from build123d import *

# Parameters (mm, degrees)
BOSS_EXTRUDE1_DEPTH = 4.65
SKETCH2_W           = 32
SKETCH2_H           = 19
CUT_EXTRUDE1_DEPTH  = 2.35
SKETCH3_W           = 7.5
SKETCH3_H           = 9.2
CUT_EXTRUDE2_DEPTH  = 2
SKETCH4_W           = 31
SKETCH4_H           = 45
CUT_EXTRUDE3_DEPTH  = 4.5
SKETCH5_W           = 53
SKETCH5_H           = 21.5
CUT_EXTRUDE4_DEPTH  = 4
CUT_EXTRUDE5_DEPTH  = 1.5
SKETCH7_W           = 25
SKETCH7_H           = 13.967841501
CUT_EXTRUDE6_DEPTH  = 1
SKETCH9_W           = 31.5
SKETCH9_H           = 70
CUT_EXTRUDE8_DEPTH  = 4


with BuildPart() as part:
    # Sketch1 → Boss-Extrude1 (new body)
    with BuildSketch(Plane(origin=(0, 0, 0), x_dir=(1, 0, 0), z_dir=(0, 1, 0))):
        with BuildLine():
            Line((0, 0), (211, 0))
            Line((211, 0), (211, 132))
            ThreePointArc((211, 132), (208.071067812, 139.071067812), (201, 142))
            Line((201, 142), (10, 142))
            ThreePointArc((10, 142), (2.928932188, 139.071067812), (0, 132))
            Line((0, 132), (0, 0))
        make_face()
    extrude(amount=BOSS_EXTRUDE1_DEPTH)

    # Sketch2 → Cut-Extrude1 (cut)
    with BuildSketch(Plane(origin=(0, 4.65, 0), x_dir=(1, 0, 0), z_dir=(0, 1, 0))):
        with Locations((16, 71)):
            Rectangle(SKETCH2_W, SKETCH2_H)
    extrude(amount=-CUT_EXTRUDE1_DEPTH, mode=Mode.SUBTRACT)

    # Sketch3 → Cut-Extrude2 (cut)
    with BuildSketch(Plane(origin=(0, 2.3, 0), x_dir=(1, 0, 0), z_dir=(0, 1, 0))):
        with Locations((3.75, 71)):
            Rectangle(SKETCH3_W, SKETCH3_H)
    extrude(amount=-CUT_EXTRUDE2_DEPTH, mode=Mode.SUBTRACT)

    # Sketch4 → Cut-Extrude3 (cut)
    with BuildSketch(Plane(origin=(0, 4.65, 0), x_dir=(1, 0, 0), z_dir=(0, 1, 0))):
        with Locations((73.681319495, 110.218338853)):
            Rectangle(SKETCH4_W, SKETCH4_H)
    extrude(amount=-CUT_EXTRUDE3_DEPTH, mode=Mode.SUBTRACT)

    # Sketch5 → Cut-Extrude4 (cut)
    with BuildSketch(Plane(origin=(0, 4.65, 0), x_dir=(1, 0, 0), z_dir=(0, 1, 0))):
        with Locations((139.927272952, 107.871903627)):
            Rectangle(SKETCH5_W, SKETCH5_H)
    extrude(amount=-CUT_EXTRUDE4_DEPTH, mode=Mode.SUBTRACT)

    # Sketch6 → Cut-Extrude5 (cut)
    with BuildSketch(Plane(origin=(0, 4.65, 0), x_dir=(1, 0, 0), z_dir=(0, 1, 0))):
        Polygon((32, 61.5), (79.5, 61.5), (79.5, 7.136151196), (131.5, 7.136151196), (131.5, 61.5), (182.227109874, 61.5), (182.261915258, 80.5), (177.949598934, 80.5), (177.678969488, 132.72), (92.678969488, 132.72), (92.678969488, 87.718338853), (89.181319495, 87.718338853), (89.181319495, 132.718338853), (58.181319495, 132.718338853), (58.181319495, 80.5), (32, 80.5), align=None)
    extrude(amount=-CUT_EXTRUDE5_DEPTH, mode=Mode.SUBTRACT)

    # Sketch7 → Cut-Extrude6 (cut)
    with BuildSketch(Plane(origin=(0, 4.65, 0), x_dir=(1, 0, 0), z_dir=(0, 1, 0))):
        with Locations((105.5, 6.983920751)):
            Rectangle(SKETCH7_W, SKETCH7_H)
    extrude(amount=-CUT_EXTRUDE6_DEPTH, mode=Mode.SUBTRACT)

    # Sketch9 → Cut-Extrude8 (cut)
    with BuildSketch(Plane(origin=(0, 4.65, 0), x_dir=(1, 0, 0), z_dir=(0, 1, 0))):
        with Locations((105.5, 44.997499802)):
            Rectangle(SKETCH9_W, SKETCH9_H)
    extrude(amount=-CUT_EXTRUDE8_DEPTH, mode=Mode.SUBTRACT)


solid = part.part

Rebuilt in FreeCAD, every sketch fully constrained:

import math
import FreeCAD as App
import Part
import Sketcher
Q = App.Units.Quantity


def add_polygon(sketch, points):
    """Adds a closed chain of lines whose ends are joined by coincident constraints."""
    first, n = sketch.GeometryCount, len(points)
    for a, b in zip(points, points[1:] + points[:1]):
        sketch.addGeometry(Part.LineSegment(App.Vector(*a, 0), App.Vector(*b, 0)), False)
    for i in range(n):
        sketch.addConstraint(Sketcher.Constraint("Coincident", first + i, 2, first + (i + 1) % n, 1))

doc = App.newDocument("Part")
body = doc.addObject("PartDesign::Body", "Body")

# Sketch on XZ plane
sketch1 = body.newObject("Sketcher::SketchObject", "Sketch")
sketch1.AttachmentSupport = (doc.getObject("XZ_Plane"), [""])
sketch1.MapMode = "FlatFace"
sketch1.addGeometry(Part.LineSegment(App.Vector(0, 0, 0), App.Vector(211, 0, 0)), False)
sketch1.addGeometry(Part.LineSegment(App.Vector(211, 0, 0), App.Vector(211, -132, 0)), False)
sketch1.addGeometry(Part.ArcOfCircle(Part.Circle(App.Vector(201, -132, 0), App.Vector(0, 0, 1), 10), math.radians(-90), math.radians(0)), False)
sketch1.addGeometry(Part.LineSegment(App.Vector(201, -142, 0), App.Vector(10, -142, 0)), False)
sketch1.addGeometry(Part.ArcOfCircle(Part.Circle(App.Vector(10, -132, 0), App.Vector(0, 0, 1), 10), math.radians(180), math.radians(270)), False)
sketch1.addGeometry(Part.LineSegment(App.Vector(0, -132, 0), App.Vector(0, 0, 0)), False)
sketch1.addConstraint(Sketcher.Constraint("Coincident", 0, 2, 1, 1))
sketch1.addConstraint(Sketcher.Constraint("Tangent", 1, 2, 2, 2))
sketch1.addConstraint(Sketcher.Constraint("Tangent", 2, 1, 3, 1))
sketch1.addConstraint(Sketcher.Constraint("Tangent", 3, 2, 4, 2))
sketch1.addConstraint(Sketcher.Constraint("Tangent", 4, 1, 5, 1))
sketch1.addConstraint(Sketcher.Constraint("Coincident", 5, 2, 0, 1))
sketch1.addConstraint(Sketcher.Constraint("Horizontal", 0))
sketch1.addConstraint(Sketcher.Constraint("Vertical", 1))
sketch1.addConstraint(Sketcher.Constraint("Horizontal", 3))
sketch1.addConstraint(Sketcher.Constraint("Vertical", 5))
sketch1.addConstraint(Sketcher.Constraint("Coincident", 5, 2, -1, 1))
sketch1.addConstraint(Sketcher.Constraint("Equal", 2, 4))
sketch1.addConstraint(Sketcher.Constraint("Radius", 2, Q("10 mm")))
sketch1.addConstraint(Sketcher.Constraint("DistanceX", 0, 1, 0, 2, Q("211 mm")))
sketch1.addConstraint(Sketcher.Constraint("DistanceY", 1, 2, 1, 1, Q("132 mm")))
pad1 = body.newObject("PartDesign::Pad", "Pad")
pad1.Profile = sketch1
pad1.Length = 4.65
pad1.Reversed = True

# Sketch on XZ plane
sketch2 = body.newObject("Sketcher::SketchObject", "Sketch001")
sketch2.AttachmentSupport = (doc.getObject("XZ_Plane"), [""])
sketch2.MapMode = "FlatFace"
sketch2.AttachmentOffset = App.Placement(App.Vector(0, 0, -4.65), App.Rotation())
add_polygon(sketch2, [(0, -80.5), (0, -61.5), (32, -61.5), (32, -80.5)])  # lines 0-3
sketch2.addConstraint(Sketcher.Constraint("Vertical", 0))
sketch2.addConstraint(Sketcher.Constraint("Horizontal", 1))
sketch2.addConstraint(Sketcher.Constraint("Vertical", 2))
sketch2.addConstraint(Sketcher.Constraint("Horizontal", 3))
sketch2.addConstraint(Sketcher.Constraint("PointOnObject", 0, 2, -2))
sketch2.addConstraint(Sketcher.Constraint("DistanceX", 1, 1, 1, 2, Q("32 mm")))
sketch2.addConstraint(Sketcher.Constraint("DistanceY", 0, 1, 0, 2, Q("19 mm")))
sketch2.addConstraint(Sketcher.Constraint("DistanceY", 0, 2, -1, 1, Q("61.5 mm")))
pocket1 = body.newObject("PartDesign::Pocket", "Pocket")
pocket1.Profile = sketch2
pocket1.Length = 2.35
pocket1.Reversed = True

# Sketch on XZ plane
sketch3 = body.newObject("Sketcher::SketchObject", "Sketch002")
sketch3.AttachmentSupport = (doc.getObject("XZ_Plane"), [""])
sketch3.MapMode = "FlatFace"
sketch3.AttachmentOffset = App.Placement(App.Vector(0, 0, -2.3), App.Rotation())
add_polygon(sketch3, [(0, -75.6), (0, -66.4), (7.5, -66.4), (7.5, -75.6)])  # lines 0-3
sketch3.addConstraint(Sketcher.Constraint("Vertical", 0))
sketch3.addConstraint(Sketcher.Constraint("Horizontal", 1))
sketch3.addConstraint(Sketcher.Constraint("Vertical", 2))
sketch3.addConstraint(Sketcher.Constraint("Horizontal", 3))
sketch3.addConstraint(Sketcher.Constraint("PointOnObject", 0, 2, -2))
sketch3.addConstraint(Sketcher.Constraint("DistanceX", 1, 1, 1, 2, Q("7.5 mm")))
sketch3.addConstraint(Sketcher.Constraint("DistanceY", 0, 1, 0, 2, Q("9.2 mm")))
sketch3.addConstraint(Sketcher.Constraint("DistanceY", 0, 2, -1, 1, Q("66.4 mm")))
pocket2 = body.newObject("PartDesign::Pocket", "Pocket001")
pocket2.Profile = sketch3
pocket2.Length = 2
pocket2.Reversed = True

# Sketch on XZ plane
sketch4 = body.newObject("Sketcher::SketchObject", "Sketch003")
sketch4.AttachmentSupport = (doc.getObject("XZ_Plane"), [""])
sketch4.MapMode = "FlatFace"
sketch4.AttachmentOffset = App.Placement(App.Vector(0, 0, -4.65), App.Rotation())
add_polygon(sketch4, [(58.181319, -132.718339), (58.181319, -87.718339), (89.181319, -87.718339), (89.181319, -132.718339)])  # lines 0-3
sketch4.addConstraint(Sketcher.Constraint("Vertical", 0))
sketch4.addConstraint(Sketcher.Constraint("Horizontal", 1))
sketch4.addConstraint(Sketcher.Constraint("Vertical", 2))
sketch4.addConstraint(Sketcher.Constraint("Horizontal", 3))
sketch4.addConstraint(Sketcher.Constraint("DistanceX", 1, 1, 1, 2, Q("31 mm")))
sketch4.addConstraint(Sketcher.Constraint("DistanceY", 0, 1, 0, 2, Q("45 mm")))
sketch4.addConstraint(Sketcher.Constraint("DistanceX", -1, 1, 0, 2, Q("58.181319 mm")))
sketch4.addConstraint(Sketcher.Constraint("DistanceY", 0, 2, -1, 1, Q("87.718339 mm")))
pocket3 = body.newObject("PartDesign::Pocket", "Pocket002")
pocket3.Profile = sketch4
pocket3.Length = 4.5
pocket3.Reversed = True

# Sketch on XZ plane
sketch5 = body.newObject("Sketcher::SketchObject", "Sketch004")
sketch5.AttachmentSupport = (doc.getObject("XZ_Plane"), [""])
sketch5.MapMode = "FlatFace"
sketch5.AttachmentOffset = App.Placement(App.Vector(0, 0, -4.65), App.Rotation())
add_polygon(sketch5, [(113.427273, -118.621904), (113.427273, -97.121904), (166.427273, -97.121904), (166.427273, -118.621904)])  # lines 0-3
sketch5.addConstraint(Sketcher.Constraint("Vertical", 0))
sketch5.addConstraint(Sketcher.Constraint("Horizontal", 1))
sketch5.addConstraint(Sketcher.Constraint("Vertical", 2))
sketch5.addConstraint(Sketcher.Constraint("Horizontal", 3))
sketch5.addConstraint(Sketcher.Constraint("DistanceX", 1, 1, 1, 2, Q("53 mm")))
sketch5.addConstraint(Sketcher.Constraint("DistanceY", 0, 1, 0, 2, Q("21.5 mm")))
sketch5.addConstraint(Sketcher.Constraint("DistanceX", -1, 1, 0, 2, Q("113.427273 mm")))
sketch5.addConstraint(Sketcher.Constraint("DistanceY", 0, 2, -1, 1, Q("97.121904 mm")))
pocket4 = body.newObject("PartDesign::Pocket", "Pocket003")
pocket4.Profile = sketch5
pocket4.Length = 4
pocket4.Reversed = True

# Sketch on XZ plane
sketch6 = body.newObject("Sketcher::SketchObject", "Sketch005")
sketch6.AttachmentSupport = (doc.getObject("XZ_Plane"), [""])
sketch6.MapMode = "FlatFace"
sketch6.AttachmentOffset = App.Placement(App.Vector(0, 0, -4.65), App.Rotation())
add_polygon(sketch6, [(32, -61.5), (79.5, -61.5), (79.5, -7.136151), (131.5, -7.136151), (131.5, -61.5), (182.22711, -61.5), (182.261915, -80.5), (177.949599, -80.5), (177.678969, -132.72), (92.678969, -132.72), (92.678969, -87.718339), (89.181319, -87.718339), (89.181319, -132.718339), (58.181319, -132.718339), (58.181319, -80.5), (32, -80.5)])  # lines 0-15
sketch6.addConstraint(Sketcher.Constraint("Horizontal", 0))
sketch6.addConstraint(Sketcher.Constraint("Vertical", 1))
sketch6.addConstraint(Sketcher.Constraint("Horizontal", 2))
sketch6.addConstraint(Sketcher.Constraint("Vertical", 3))
sketch6.addConstraint(Sketcher.Constraint("Horizontal", 4))
sketch6.addConstraint(Sketcher.Constraint("Horizontal", 6))
sketch6.addConstraint(Sketcher.Constraint("Horizontal", 8))
sketch6.addConstraint(Sketcher.Constraint("Vertical", 9))
sketch6.addConstraint(Sketcher.Constraint("Horizontal", 10))
sketch6.addConstraint(Sketcher.Constraint("Vertical", 11))
sketch6.addConstraint(Sketcher.Constraint("Horizontal", 12))
sketch6.addConstraint(Sketcher.Constraint("Vertical", 13))
sketch6.addConstraint(Sketcher.Constraint("Horizontal", 14))
sketch6.addConstraint(Sketcher.Constraint("Vertical", 15))
sketch6.addConstraint(Sketcher.Constraint("Horizontal", 0, 2, 3, 2))
sketch6.addConstraint(Sketcher.Constraint("Horizontal", 6, 2, 13, 2))
sketch6.addConstraint(Sketcher.Constraint("DistanceX", 2, 1, 2, 2, Q("52 mm")))
sketch6.addConstraint(Sketcher.Constraint("DistanceX", 8, 2, 8, 1, Q("85 mm")))
sketch6.addConstraint(Sketcher.Constraint("DistanceX", 12, 2, 12, 1, Q("31 mm")))
sketch6.addConstraint(Sketcher.Constraint("DistanceY", 11, 2, 11, 1, Q("45 mm")))
sketch6.addConstraint(Sketcher.Constraint("DistanceY", 15, 1, 15, 2, Q("19 mm")))
sketch6.addConstraint(Sketcher.Constraint("DistanceX", 0, 1, 0, 2, Q("47.5 mm")))
sketch6.addConstraint(Sketcher.Constraint("DistanceX", -1, 1, 14, 2, Q("32 mm")))
sketch6.addConstraint(Sketcher.Constraint("DistanceY", 0, 2, -1, 1, Q("61.5 mm")))
sketch6.addConstraint(Sketcher.Constraint("DistanceY", 7, 2, -1, 1, Q("132.72 mm")))
sketch6.addConstraint(Sketcher.Constraint("Distance", 7, Q("52.220701 mm")))
sketch6.addConstraint(Sketcher.Constraint("DistanceX", 4, 1, 4, 2, Q("50.72711 mm")))
sketch6.addConstraint(Sketcher.Constraint("DistanceX", 10, 2, 10, 1, Q("3.49765 mm")))
sketch6.addConstraint(Sketcher.Constraint("DistanceX", 14, 2, 14, 1, Q("26.181319 mm")))
sketch6.addConstraint(Sketcher.Constraint("DistanceY", 1, 1, 1, 2, Q("54.363849 mm")))
sketch6.addConstraint(Sketcher.Constraint("DistanceY", 9, 1, 9, 2, Q("45.001661 mm")))
sketch6.addConstraint(Sketcher.Constraint("DistanceX", 6, 2, 6, 1, Q("4.312316 mm")))
pocket5 = body.newObject("PartDesign::Pocket", "Pocket004")
pocket5.Profile = sketch6
pocket5.Length = 1.5
pocket5.Reversed = True

# Sketch on XZ plane
sketch7 = body.newObject("Sketcher::SketchObject", "Sketch006")
sketch7.AttachmentSupport = (doc.getObject("XZ_Plane"), [""])
sketch7.MapMode = "FlatFace"
sketch7.AttachmentOffset = App.Placement(App.Vector(0, 0, -4.65), App.Rotation())
add_polygon(sketch7, [(93, -13.967842), (93, 0), (118, 0), (118, -13.967842)])  # lines 0-3
sketch7.addConstraint(Sketcher.Constraint("Vertical", 0))
sketch7.addConstraint(Sketcher.Constraint("Horizontal", 1))
sketch7.addConstraint(Sketcher.Constraint("Vertical", 2))
sketch7.addConstraint(Sketcher.Constraint("Horizontal", 3))
sketch7.addConstraint(Sketcher.Constraint("PointOnObject", 0, 2, -1))
sketch7.addConstraint(Sketcher.Constraint("DistanceX", 1, 1, 1, 2, Q("25 mm")))
sketch7.addConstraint(Sketcher.Constraint("DistanceX", -1, 1, 0, 2, Q("93 mm")))
sketch7.addConstraint(Sketcher.Constraint("DistanceY", 0, 1, 0, 2, Q("13.967842 mm")))
pocket6 = body.newObject("PartDesign::Pocket", "Pocket005")
pocket6.Profile = sketch7
pocket6.Length = 1
pocket6.Reversed = True

# Sketch on XZ plane
sketch8 = body.newObject("Sketcher::SketchObject", "Sketch007")
sketch8.AttachmentSupport = (doc.getObject("XZ_Plane"), [""])
sketch8.MapMode = "FlatFace"
sketch8.AttachmentOffset = App.Placement(App.Vector(0, 0, -4.65), App.Rotation())
add_polygon(sketch8, [(89.75, -79.9975), (89.75, -9.9975), (121.25, -9.9975), (121.25, -79.9975)])  # lines 0-3
sketch8.addConstraint(Sketcher.Constraint("Vertical", 0))
sketch8.addConstraint(Sketcher.Constraint("Horizontal", 1))
sketch8.addConstraint(Sketcher.Constraint("Vertical", 2))
sketch8.addConstraint(Sketcher.Constraint("Horizontal", 3))
sketch8.addConstraint(Sketcher.Constraint("DistanceY", 0, 1, 0, 2, Q("70 mm")))
sketch8.addConstraint(Sketcher.Constraint("DistanceX", 1, 1, 1, 2, Q("31.5 mm")))
sketch8.addConstraint(Sketcher.Constraint("DistanceX", -1, 1, 0, 2, Q("89.75 mm")))
sketch8.addConstraint(Sketcher.Constraint("DistanceY", 0, 2, -1, 1, Q("9.9975 mm")))
pocket7 = body.newObject("PartDesign::Pocket", "Pocket006")
pocket7.Profile = sketch8
pocket7.Length = 4
pocket7.Reversed = True

doc.recompute()
